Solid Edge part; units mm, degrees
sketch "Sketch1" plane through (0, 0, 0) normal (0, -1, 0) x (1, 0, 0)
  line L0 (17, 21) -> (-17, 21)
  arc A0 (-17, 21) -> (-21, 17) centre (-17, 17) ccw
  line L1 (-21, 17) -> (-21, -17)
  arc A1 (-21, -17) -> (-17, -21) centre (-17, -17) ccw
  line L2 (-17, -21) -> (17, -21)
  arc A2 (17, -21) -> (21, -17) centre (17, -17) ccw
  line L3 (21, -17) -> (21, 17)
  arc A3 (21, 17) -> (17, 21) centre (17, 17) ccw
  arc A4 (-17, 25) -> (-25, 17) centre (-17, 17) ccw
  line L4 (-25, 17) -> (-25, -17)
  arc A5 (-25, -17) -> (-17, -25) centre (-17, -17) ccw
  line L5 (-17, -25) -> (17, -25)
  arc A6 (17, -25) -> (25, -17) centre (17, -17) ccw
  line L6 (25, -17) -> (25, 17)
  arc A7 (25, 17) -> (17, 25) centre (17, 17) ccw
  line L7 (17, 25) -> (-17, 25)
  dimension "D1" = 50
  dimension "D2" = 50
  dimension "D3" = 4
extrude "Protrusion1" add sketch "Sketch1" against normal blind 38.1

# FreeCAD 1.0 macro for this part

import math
import FreeCAD as App
import Part
import Sketcher

doc = App.newDocument("Part")
params = doc.addObject("Spreadsheet::Sheet", "Params")
for row, (alias, value) in enumerate([
    ("sketch1_radius", "8 mm"),
    ("sketch1_radius2", "4 mm"),
    ("sketch1_width", "34 mm"),
    ("pad1_length", "38.1 mm"),
], start=1):
    params.set(f"A{row}", alias)
    params.set(f"B{row}", "=" + value)
    params.setAlias(f"B{row}", alias)

body = doc.addObject("PartDesign::Body", "Body")

# Sketch on XZ plane
sketch1 = doc.addObject("Sketcher::SketchObject", "Sketch")
body.addObject(sketch1)
sketch1.AttachmentSupport = (doc.XZ_Plane, [""])
sketch1.MapMode = "FlatFace"
sketch1.addGeometry([
    Part.LineSegment(App.Vector(17, 25, 0), App.Vector(-17, 25, 0)),  # 0
    Part.ArcOfCircle(Part.Circle(App.Vector(-17, 17, 0), App.Vector(0, 0, 1), 8), math.radians(90), math.radians(180)),  # 1
    Part.LineSegment(App.Vector(-25, 17, 0), App.Vector(-25, -17, 0)),  # 2
    Part.ArcOfCircle(Part.Circle(App.Vector(-17, -17, 0), App.Vector(0, 0, 1), 8), math.radians(180), math.radians(270)),  # 3
    Part.LineSegment(App.Vector(-17, -25, 0), App.Vector(17, -25, 0)),  # 4
    Part.ArcOfCircle(Part.Circle(App.Vector(17, -17, 0), App.Vector(0, 0, 1), 8), math.radians(-90), math.radians(0)),  # 5
    Part.LineSegment(App.Vector(25, -17, 0), App.Vector(25, 17, 0)),  # 6
    Part.ArcOfCircle(Part.Circle(App.Vector(17, 17, 0), App.Vector(0, 0, 1), 8), math.radians(0), math.radians(90)),  # 7
    Part.LineSegment(App.Vector(-17, 21, 0), App.Vector(17, 21, 0)),  # 8
    Part.ArcOfCircle(Part.Circle(App.Vector(17, 17, 0), App.Vector(0, 0, 1), 4), math.radians(0), math.radians(90)),  # 9
    Part.LineSegment(App.Vector(21, 17, 0), App.Vector(21, -17, 0)),  # 10
    Part.ArcOfCircle(Part.Circle(App.Vector(17, -17, 0), App.Vector(0, 0, 1), 4), math.radians(-90), math.radians(0)),  # 11
    Part.LineSegment(App.Vector(17, -21, 0), App.Vector(-17, -21, 0)),  # 12
    Part.ArcOfCircle(Part.Circle(App.Vector(-17, -17, 0), App.Vector(0, 0, 1), 4), math.radians(180), math.radians(270)),  # 13
    Part.LineSegment(App.Vector(-21, -17, 0), App.Vector(-21, 17, 0)),  # 14
    Part.ArcOfCircle(Part.Circle(App.Vector(-17, 17, 0), App.Vector(0, 0, 1), 4), math.radians(90), math.radians(180)),  # 15
], False)
sketch1.addConstraint([
    Sketcher.Constraint("Tangent", 0, 2, 1, 1),
    Sketcher.Constraint("Tangent", 1, 2, 2, 1),
    Sketcher.Constraint("Tangent", 2, 2, 3, 1),
    Sketcher.Constraint("Tangent", 3, 2, 4, 1),
    Sketcher.Constraint("Tangent", 4, 2, 5, 1),
    Sketcher.Constraint("Tangent", 5, 2, 6, 1),
    Sketcher.Constraint("Tangent", 6, 2, 7, 1),
    Sketcher.Constraint("Tangent", 7, 2, 0, 1),
    Sketcher.Constraint("Tangent", 8, 2, 9, 2),
    Sketcher.Constraint("Tangent", 9, 1, 10, 1),
    Sketcher.Constraint("Tangent", 10, 2, 11, 2),
    Sketcher.Constraint("Tangent", 11, 1, 12, 1),
    Sketcher.Constraint("Tangent", 12, 2, 13, 2),
    Sketcher.Constraint("Tangent", 13, 1, 14, 1),
    Sketcher.Constraint("Tangent", 14, 2, 15, 2),
    Sketcher.Constraint("Tangent", 15, 1, 8, 1),
    Sketcher.Constraint("Horizontal", 0),
    Sketcher.Constraint("Vertical", 2),
    Sketcher.Constraint("Horizontal", 4),
    Sketcher.Constraint("Vertical", 6),
    Sketcher.Constraint("Horizontal", 8),
    Sketcher.Constraint("Vertical", 10),
    Sketcher.Constraint("Horizontal", 12),
    Sketcher.Constraint("Vertical", 14),
    Sketcher.Constraint("Coincident", 9, 3, 7, 3),
    Sketcher.Constraint("Coincident", 11, 3, 5, 3),
    Sketcher.Constraint("Coincident", 13, 3, 3, 3),
    Sketcher.Constraint("Equal", 1, 3),
    Sketcher.Constraint("Equal", 3, 5),
    Sketcher.Constraint("Equal", 5, 7),
    Sketcher.Constraint("Equal", 13, 15),
    Sketcher.Constraint("Symmetric", 1, 3, 5, 3, -1, 1),
    Sketcher.Constraint("Equal", 12, 2),
    Sketcher.Constraint("Radius", 1, 8.0),
    Sketcher.Constraint("Radius", 9, 4.0),
    Sketcher.Constraint("DistanceX", 0, 2, 0, 1, 34.0),
])
sketch1.setExpression("Constraints[33]", "Params.sketch1_radius")
sketch1.setExpression("Constraints[34]", "Params.sketch1_radius2")
sketch1.setExpression("Constraints[35]", "Params.sketch1_width")
pad1 = doc.addObject("PartDesign::Pad", "Pad")
body.addObject(pad1)
pad1.Profile = sketch1
pad1.setExpression("Length", "Params.pad1_length")
pad1.Reversed = True

doc.recompute()
